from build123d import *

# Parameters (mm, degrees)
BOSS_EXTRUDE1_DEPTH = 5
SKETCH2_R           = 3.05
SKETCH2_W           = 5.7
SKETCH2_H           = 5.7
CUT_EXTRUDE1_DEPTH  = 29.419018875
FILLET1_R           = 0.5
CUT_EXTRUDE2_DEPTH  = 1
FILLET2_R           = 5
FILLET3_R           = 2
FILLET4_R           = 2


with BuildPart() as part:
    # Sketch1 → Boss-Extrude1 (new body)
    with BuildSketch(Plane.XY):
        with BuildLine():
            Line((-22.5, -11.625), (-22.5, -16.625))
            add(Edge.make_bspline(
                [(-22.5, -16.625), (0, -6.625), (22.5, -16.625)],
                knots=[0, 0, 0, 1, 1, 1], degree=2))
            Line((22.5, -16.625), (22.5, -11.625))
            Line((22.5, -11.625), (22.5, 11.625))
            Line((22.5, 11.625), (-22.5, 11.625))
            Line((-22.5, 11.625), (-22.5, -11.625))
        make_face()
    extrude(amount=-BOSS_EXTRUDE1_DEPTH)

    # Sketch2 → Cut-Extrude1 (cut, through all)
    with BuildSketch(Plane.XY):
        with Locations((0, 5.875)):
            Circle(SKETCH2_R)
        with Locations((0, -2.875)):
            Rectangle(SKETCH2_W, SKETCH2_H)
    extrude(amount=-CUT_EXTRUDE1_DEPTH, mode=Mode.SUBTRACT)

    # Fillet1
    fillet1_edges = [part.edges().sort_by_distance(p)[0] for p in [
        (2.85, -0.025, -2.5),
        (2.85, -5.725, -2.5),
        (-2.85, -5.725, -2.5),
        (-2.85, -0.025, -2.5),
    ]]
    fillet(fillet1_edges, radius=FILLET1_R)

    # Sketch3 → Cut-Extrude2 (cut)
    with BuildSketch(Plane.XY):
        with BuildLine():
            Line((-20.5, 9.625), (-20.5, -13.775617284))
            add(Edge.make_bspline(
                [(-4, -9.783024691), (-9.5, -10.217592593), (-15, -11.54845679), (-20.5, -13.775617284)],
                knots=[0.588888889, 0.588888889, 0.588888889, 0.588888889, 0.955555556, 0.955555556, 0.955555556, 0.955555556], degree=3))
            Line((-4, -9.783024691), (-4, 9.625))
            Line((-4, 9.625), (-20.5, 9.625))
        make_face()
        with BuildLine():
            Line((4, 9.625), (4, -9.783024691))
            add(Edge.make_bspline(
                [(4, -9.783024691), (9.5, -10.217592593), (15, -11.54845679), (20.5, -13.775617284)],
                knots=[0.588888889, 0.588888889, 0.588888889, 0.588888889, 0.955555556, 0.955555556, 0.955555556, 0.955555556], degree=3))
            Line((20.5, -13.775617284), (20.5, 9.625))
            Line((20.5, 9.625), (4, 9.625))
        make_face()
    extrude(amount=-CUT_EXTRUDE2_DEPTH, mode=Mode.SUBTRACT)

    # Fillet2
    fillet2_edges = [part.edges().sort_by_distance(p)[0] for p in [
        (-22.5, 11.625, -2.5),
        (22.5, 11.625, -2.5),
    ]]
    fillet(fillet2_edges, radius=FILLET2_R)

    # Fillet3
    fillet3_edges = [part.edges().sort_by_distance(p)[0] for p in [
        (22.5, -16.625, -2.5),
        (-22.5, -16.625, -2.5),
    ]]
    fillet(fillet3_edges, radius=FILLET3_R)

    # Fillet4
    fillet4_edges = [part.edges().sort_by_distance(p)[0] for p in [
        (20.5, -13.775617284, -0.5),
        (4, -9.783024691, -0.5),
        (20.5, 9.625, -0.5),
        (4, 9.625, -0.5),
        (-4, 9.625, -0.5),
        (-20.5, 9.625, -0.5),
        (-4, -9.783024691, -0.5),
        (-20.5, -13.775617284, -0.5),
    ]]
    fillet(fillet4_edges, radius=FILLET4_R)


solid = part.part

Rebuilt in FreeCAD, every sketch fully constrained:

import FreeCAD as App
import Part
import Sketcher


def edges_at(feature, points):
    """Names of the edges that pass closest to the given points."""
    edges = feature.Shape.Edges
    near = lambda p: min(range(len(edges)), key=lambda i: edges[i].distToShape(Part.Vertex(*p))[0])
    return sorted({f"Edge{near(p) + 1}" for p in points})


def add_polygon(sketch, points):
    """Adds a closed chain of lines whose ends are joined by coincident constraints."""
    first, n = sketch.GeometryCount, len(points)
    for a, b in zip(points, points[1:] + points[:1]):
        sketch.addGeometry(Part.LineSegment(App.Vector(*a, 0), App.Vector(*b, 0)), False)
    for i in range(n):
        sketch.addConstraint(Sketcher.Constraint("Coincident", first + i, 2, first + (i + 1) % n, 1))

doc = App.newDocument("Part")
body = doc.addObject("PartDesign::Body", "Body")

# Sketch on XY plane
sketch1 = body.newObject("Sketcher::SketchObject", "Sketch")
sketch1.AttachmentSupport = (doc.getObject("XY_Plane"), [""])
sketch1.MapMode = "FlatFace"
sketch1.addGeometry(Part.BSplineCurve([App.Vector(-22.5, -16.625, 0), App.Vector(0, -6.625, 0), App.Vector(22.5, -16.625, 0)], [3, 3], [0, 1], False, 2, [1, 1, 1], False), False)
sketch1.addGeometry(Part.LineSegment(App.Vector(22.5, -16.625, 0), App.Vector(22.5, 11.625, 0)), False)
sketch1.addGeometry(Part.LineSegment(App.Vector(22.5, 11.625, 0), App.Vector(-22.5, 11.625, 0)), False)
sketch1.addGeometry(Part.LineSegment(App.Vector(-22.5, 11.625, 0), App.Vector(-22.5, -16.625, 0)), False)
sketch1.addConstraint(Sketcher.Constraint("Block", 0))
sketch1.addConstraint(Sketcher.Constraint("Coincident", 0, 2, 1, 1))
sketch1.addConstraint(Sketcher.Constraint("Coincident", 1, 2, 2, 1))
sketch1.addConstraint(Sketcher.Constraint("Coincident", 2, 2, 3, 1))
sketch1.addConstraint(Sketcher.Constraint("Coincident", 3, 2, 0, 1))
sketch1.addConstraint(Sketcher.Constraint("Vertical", 1))
sketch1.addConstraint(Sketcher.Constraint("Horizontal", 2))
sketch1.addConstraint(Sketcher.Constraint("Vertical", 3))
sketch1.addConstraint(Sketcher.Constraint("DistanceY", 1, 1, 1, 2, 28.25))
pad1 = body.newObject("PartDesign::Pad", "Pad")
pad1.Profile = sketch1
pad1.Length = 5
pad1.Reversed = True

# Sketch on XY plane
sketch2 = body.newObject("Sketcher::SketchObject", "Sketch001")
sketch2.AttachmentSupport = (doc.getObject("XY_Plane"), [""])
sketch2.MapMode = "FlatFace"
sketch2.addGeometry(Part.Circle(App.Vector(0, 5.9, 0), App.Vector(0, 0, 1), 3), False)  # 0
add_polygon(sketch2, [(-2.9, 0), (-2.9, -5.7), (2.9, -5.7), (2.9, 0)])  # lines 1-4
sketch2.addConstraint(Sketcher.Constraint("Vertical", 1))
sketch2.addConstraint(Sketcher.Constraint("Horizontal", 2))
sketch2.addConstraint(Sketcher.Constraint("Vertical", 3))
sketch2.addConstraint(Sketcher.Constraint("Horizontal", 4))
sketch2.addConstraint(Sketcher.Constraint("PointOnObject", 0, 3, -2))
sketch2.addConstraint(Sketcher.Constraint("Equal", 4, 1))
sketch2.addConstraint(Sketcher.Constraint("Diameter", 0, 6.1))
sketch2.addConstraint(Sketcher.Constraint("DistanceX", 2, 1, 2, 2, 5.7))
sketch2.addConstraint(Sketcher.Constraint("DistanceY", 1, 2, 0, 3, 11.6))
sketch2.addConstraint(Sketcher.Constraint("DistanceX", 1, 2, -1, 1, 2.85))
sketch2.addConstraint(Sketcher.Constraint("DistanceY", -1, 1, 0, 3, 5.875))
pocket1 = body.newObject("PartDesign::Pocket", "Pocket")
pocket1.Profile = sketch2
pocket1.Type = "ThroughAll"
doc.recompute()

fillet = body.newObject("PartDesign::Fillet", "Fillet")
fillet.Base = (pocket1, edges_at(pocket1, [
    (2.85, -0.025, -2.5),
    (2.85, -5.725, -2.5),
    (-2.85, -5.725, -2.5),
    (-2.85, -0.025, -2.5),
]))
fillet.Radius = 0.5

# Sketch on XY plane
sketch3 = body.newObject("Sketcher::SketchObject", "Sketch002")
sketch3.AttachmentSupport = (doc.getObject("XY_Plane"), [""])
sketch3.MapMode = "FlatFace"
sketch3.addGeometry(Part.LineSegment(App.Vector(-20.5, 9.625, 0), App.Vector(-20.5, -13.775617, 0)), False)
sketch3.addGeometry(Part.BSplineCurve([App.Vector(-4, -9.783025, 0), App.Vector(-9.5, -10.217593, 0), App.Vector(-15, -11.548457, 0), App.Vector(-20.5, -13.775617, 0)], [4, 4], [0.588888889, 0.955555556], False, 3, [1, 1, 1, 1], False), False)
sketch3.addGeometry(Part.LineSegment(App.Vector(-4, -9.783025, 0), App.Vector(-4, 9.625, 0)), False)
sketch3.addGeometry(Part.LineSegment(App.Vector(-4, 9.625, 0), App.Vector(-20.5, 9.625, 0)), False)
sketch3.addGeometry(Part.LineSegment(App.Vector(4, 9.625, 0), App.Vector(4, -9.783025, 0)), False)
sketch3.addGeometry(Part.BSplineCurve([App.Vector(4, -9.783025, 0), App.Vector(9.5, -10.217593, 0), App.Vector(15, -11.548457, 0), App.Vector(20.5, -13.775617, 0)], [4, 4], [0.588888889, 0.955555556], False, 3, [1, 1, 1, 1], False), False)
sketch3.addGeometry(Part.LineSegment(App.Vector(20.5, -13.775617, 0), App.Vector(20.5, 9.625, 0)), False)
sketch3.addGeometry(Part.LineSegment(App.Vector(20.5, 9.625, 0), App.Vector(4, 9.625, 0)), False)
sketch3.addConstraint(Sketcher.Constraint("Block", 1))
sketch3.addConstraint(Sketcher.Constraint("Block", 5))
sketch3.addConstraint(Sketcher.Constraint("Coincident", 0, 2, 1, 2))
sketch3.addConstraint(Sketcher.Constraint("Coincident", 1, 1, 2, 1))
sketch3.addConstraint(Sketcher.Constraint("Coincident", 2, 2, 3, 1))
sketch3.addConstraint(Sketcher.Constraint("Coincident", 3, 2, 0, 1))
sketch3.addConstraint(Sketcher.Constraint("Coincident", 4, 2, 5, 1))
sketch3.addConstraint(Sketcher.Constraint("Coincident", 5, 2, 6, 1))
sketch3.addConstraint(Sketcher.Constraint("Coincident", 6, 2, 7, 1))
sketch3.addConstraint(Sketcher.Constraint("Coincident", 7, 2, 4, 1))
sketch3.addConstraint(Sketcher.Constraint("Vertical", 0))
sketch3.addConstraint(Sketcher.Constraint("Vertical", 2))
sketch3.addConstraint(Sketcher.Constraint("Horizontal", 3))
sketch3.addConstraint(Sketcher.Constraint("Vertical", 4))
sketch3.addConstraint(Sketcher.Constraint("Vertical", 6))
sketch3.addConstraint(Sketcher.Constraint("Horizontal", 7))
sketch3.addConstraint(Sketcher.Constraint("Horizontal", 3, 2, 6, 2))
sketch3.addConstraint(Sketcher.Constraint("DistanceY", -1, 1, 2, 2, 9.625))
pocket2 = body.newObject("PartDesign::Pocket", "Pocket001")
pocket2.Profile = sketch3
pocket2.Length = 1
doc.recompute()

fillet2 = body.newObject("PartDesign::Fillet", "Fillet001")
fillet2.Base = (pocket2, edges_at(pocket2, [(-22.5, 11.625, -2.5), (22.5, 11.625, -2.5)]))
fillet2.Radius = 5
doc.recompute()

fillet3 = body.newObject("PartDesign::Fillet", "Fillet002")
fillet3.Base = (fillet2, edges_at(fillet2, [(22.5, -16.625, -2.5), (-22.5, -16.625, -2.5)]))
fillet3.Radius = 2
doc.recompute()

fillet4 = body.newObject("PartDesign::Fillet", "Fillet003")
fillet4.Base = (fillet3, edges_at(fillet3, [
    (20.5, -13.776, -0.5),
    (4, -9.783, -0.5),
    (20.5, 9.625, -0.5),
    (4, 9.625, -0.5),
    (-4, 9.625, -0.5),
    (-20.5, 9.625, -0.5),
    (-4, -9.783, -0.5),
    (-20.5, -13.776, -0.5),
]))
fillet4.Radius = 2

doc.recompute()
